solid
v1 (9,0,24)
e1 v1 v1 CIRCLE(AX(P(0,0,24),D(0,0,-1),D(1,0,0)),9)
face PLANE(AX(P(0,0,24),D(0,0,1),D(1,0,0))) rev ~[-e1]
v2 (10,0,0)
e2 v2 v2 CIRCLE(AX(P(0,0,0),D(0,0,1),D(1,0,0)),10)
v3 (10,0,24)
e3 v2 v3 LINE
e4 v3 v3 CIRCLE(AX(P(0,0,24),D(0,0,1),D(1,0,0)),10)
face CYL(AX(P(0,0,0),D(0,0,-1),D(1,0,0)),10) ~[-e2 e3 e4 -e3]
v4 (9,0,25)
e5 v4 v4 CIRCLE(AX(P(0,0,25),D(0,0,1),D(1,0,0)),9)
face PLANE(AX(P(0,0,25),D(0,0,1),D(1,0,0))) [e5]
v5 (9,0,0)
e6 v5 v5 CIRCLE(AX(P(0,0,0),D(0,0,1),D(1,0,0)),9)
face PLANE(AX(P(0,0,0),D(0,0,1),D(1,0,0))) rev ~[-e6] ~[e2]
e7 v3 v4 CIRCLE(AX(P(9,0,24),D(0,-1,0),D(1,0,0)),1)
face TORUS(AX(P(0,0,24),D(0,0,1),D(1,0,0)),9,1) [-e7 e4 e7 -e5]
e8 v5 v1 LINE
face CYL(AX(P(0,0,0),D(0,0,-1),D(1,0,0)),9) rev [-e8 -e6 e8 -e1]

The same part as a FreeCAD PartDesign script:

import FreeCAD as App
import Part
import Sketcher

V = App.Vector
Q = App.Units.Quantity


def edges_at(feature, points):
    """Names of the edges that pass closest to the given points."""
    edges = feature.Shape.Edges
    near = lambda p: min(range(len(edges)), key=lambda i: edges[i].distToShape(Part.Vertex(*p))[0])
    return sorted({f"Edge{near(p) + 1}" for p in points})


def faces_at(feature, points):
    """Names of the faces that lie closest to the given points."""
    faces = feature.Shape.Faces
    near = lambda p: min(range(len(faces)), key=lambda i: faces[i].distToShape(Part.Vertex(*p))[0])
    return sorted({f"Face{near(p) + 1}" for p in points})

doc = App.newDocument("Part")
params = doc.addObject("Spreadsheet::Sheet", "Params")
for row, (alias, value) in enumerate([
    ("sketch1_diameter", "20 mm"),
    ("pad1_length", "25 mm"),
    ("thickness_wall", "1 mm"),
    ("fillet_radius", "1 mm"),
], start=1):
    params.set(f"A{row}", alias)
    params.set(f"B{row}", "=" + value)
    params.setAlias(f"B{row}", alias)

body = doc.addObject("PartDesign::Body", "Body")

# Sketch on XY plane
sketch1 = body.newObject("Sketcher::SketchObject", "Sketch")
sketch1.AttachmentSupport = (doc.getObject("XY_Plane"), [""])
sketch1.MapMode = "FlatFace"
sketch1.addGeometry(Part.Circle(V(0, 0, 0), V(0, 0, 1), 10), False)
sketch1.addConstraint([
    Sketcher.Constraint("Coincident", 0, 3, -1, 1),
    Sketcher.Constraint("Diameter", 0, Q("20 mm")),
])
sketch1.setExpression("Constraints[1]", "Params.sketch1_diameter")
pad1 = body.newObject("PartDesign::Pad", "Pad")
pad1.Profile = sketch1
pad1.setExpression("Length", "Params.pad1_length")
doc.recompute()

thickness = body.newObject("PartDesign::Thickness", "Thickness")
thickness.Base = (pad1, faces_at(pad1, [(0, 0, 0)]))
thickness.setExpression("Value", "Params.thickness_wall")
thickness.Reversed = True
thickness.Join = "Arc"
doc.recompute()

fillet = body.newObject("PartDesign::Fillet", "Fillet")
fillet.Base = (thickness, edges_at(thickness, [(-10, 0, 25)]))
fillet.setExpression("Radius", "Params.fillet_radius")

doc.recompute()
